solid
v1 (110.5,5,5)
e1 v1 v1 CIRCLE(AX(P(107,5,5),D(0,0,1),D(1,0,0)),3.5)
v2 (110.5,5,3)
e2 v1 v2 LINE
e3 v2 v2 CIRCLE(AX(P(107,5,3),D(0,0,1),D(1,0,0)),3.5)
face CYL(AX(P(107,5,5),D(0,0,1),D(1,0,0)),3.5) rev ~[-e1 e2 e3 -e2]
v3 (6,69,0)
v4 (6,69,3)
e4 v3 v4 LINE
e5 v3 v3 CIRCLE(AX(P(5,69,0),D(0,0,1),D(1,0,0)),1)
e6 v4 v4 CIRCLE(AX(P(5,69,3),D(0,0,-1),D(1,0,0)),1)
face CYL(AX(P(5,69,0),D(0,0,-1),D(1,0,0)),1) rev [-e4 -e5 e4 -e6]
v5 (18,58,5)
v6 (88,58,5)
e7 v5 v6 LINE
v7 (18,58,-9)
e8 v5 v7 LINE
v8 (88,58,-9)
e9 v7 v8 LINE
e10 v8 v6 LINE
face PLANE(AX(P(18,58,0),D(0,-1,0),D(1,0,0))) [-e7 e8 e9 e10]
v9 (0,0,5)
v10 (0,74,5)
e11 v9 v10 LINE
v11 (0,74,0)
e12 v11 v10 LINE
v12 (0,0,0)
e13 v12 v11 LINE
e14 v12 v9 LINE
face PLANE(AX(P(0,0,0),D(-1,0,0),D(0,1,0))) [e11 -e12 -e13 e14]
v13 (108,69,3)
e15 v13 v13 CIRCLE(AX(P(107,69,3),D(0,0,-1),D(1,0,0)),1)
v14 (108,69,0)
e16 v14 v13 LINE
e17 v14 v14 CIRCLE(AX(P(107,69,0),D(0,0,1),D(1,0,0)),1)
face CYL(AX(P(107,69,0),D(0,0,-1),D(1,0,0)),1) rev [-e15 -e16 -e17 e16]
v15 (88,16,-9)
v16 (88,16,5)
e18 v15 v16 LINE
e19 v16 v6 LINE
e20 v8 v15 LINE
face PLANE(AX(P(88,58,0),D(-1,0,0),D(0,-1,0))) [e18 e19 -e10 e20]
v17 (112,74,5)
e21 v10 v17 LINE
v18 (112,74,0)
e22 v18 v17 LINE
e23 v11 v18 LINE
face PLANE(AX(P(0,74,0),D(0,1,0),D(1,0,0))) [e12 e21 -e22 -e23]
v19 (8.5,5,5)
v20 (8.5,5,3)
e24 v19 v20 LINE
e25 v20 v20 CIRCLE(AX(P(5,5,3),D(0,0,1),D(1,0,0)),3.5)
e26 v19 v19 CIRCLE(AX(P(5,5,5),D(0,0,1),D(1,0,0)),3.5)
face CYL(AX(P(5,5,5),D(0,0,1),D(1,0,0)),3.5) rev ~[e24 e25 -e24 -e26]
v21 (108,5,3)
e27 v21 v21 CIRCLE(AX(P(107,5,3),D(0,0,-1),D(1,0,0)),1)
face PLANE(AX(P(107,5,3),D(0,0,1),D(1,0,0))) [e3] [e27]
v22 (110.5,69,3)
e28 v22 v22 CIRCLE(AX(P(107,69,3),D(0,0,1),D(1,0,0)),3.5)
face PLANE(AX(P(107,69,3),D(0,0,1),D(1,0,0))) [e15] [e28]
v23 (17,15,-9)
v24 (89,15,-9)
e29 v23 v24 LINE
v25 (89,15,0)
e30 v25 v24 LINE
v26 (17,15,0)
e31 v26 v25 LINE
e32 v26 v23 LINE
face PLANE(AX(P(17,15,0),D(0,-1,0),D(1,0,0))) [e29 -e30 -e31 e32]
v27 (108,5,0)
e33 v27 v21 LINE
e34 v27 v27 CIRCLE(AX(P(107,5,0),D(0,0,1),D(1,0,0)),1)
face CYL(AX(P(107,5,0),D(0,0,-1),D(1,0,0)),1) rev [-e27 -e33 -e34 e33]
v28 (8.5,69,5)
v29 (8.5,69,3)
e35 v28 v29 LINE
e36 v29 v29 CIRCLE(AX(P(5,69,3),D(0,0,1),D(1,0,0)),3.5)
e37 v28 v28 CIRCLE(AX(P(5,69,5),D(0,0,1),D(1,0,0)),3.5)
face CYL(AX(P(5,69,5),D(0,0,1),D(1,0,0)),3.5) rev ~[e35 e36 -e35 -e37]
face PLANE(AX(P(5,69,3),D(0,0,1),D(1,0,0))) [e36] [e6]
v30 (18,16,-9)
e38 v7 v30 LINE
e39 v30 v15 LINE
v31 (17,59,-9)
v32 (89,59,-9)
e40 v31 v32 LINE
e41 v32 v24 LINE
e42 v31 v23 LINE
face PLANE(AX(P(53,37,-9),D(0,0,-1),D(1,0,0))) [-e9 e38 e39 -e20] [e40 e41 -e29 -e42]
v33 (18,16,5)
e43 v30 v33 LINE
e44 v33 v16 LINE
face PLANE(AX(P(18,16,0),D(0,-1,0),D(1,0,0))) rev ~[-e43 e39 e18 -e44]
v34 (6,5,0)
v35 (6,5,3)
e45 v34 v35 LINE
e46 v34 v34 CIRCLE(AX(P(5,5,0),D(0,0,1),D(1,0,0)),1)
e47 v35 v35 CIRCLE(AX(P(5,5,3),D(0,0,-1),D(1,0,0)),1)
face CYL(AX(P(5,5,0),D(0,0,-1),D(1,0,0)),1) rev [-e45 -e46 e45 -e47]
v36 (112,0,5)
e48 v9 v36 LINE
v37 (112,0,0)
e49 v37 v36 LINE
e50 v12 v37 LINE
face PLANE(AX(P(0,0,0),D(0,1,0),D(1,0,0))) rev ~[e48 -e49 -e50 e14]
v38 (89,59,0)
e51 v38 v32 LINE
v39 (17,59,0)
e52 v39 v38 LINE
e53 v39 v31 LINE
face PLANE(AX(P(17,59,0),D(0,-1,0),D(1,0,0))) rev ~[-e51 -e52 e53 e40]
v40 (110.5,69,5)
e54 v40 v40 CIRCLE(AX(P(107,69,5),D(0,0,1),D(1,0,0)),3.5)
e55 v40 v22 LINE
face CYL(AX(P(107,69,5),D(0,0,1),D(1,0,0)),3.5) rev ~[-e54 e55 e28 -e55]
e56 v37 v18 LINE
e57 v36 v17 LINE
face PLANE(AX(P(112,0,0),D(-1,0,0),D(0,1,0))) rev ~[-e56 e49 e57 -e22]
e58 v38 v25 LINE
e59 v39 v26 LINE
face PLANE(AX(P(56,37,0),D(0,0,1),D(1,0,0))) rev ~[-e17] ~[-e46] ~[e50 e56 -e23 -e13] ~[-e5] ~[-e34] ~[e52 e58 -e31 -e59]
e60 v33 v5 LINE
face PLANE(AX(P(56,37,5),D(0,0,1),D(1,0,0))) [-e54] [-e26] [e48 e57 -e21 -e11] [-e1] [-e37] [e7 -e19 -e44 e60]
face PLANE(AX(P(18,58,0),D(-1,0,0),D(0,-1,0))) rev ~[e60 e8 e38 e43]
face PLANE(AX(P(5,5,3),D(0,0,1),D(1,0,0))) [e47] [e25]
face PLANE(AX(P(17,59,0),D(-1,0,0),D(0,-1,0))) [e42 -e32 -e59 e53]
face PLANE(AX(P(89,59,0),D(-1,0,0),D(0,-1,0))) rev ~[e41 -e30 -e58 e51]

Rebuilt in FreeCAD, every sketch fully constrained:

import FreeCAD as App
import Part
import Sketcher
from FreeCAD import Vector

doc = App.newDocument("Part")
body = doc.addObject("PartDesign::Body", "Body")

sketch1 = doc.addObject("Sketcher::SketchObject", "Sketch")
body.addObject(sketch1)
sketch1.AttachmentSupport = (doc.XY_Plane, [""])
sketch1.MapMode = "FlatFace"
sketch1.addGeometry([
    Part.LineSegment(Vector(0, 74, 0), Vector(0, 0, 0)),
    Part.LineSegment(Vector(0, 0, 0), Vector(112, 0, 0)),
    Part.LineSegment(Vector(112, 0, 0), Vector(112, 74, 0)),
    Part.LineSegment(Vector(112, 74, 0), Vector(0, 74, 0)),
    Part.Circle(Vector(5, 5, 0), Vector(0, 0, 1), 1),
    Part.Circle(Vector(107, 5, 0), Vector(0, 0, 1), 1),
    Part.Circle(Vector(5, 69, 0), Vector(0, 0, 1), 1),
    Part.Circle(Vector(107, 69, 0), Vector(0, 0, 1), 1),
], False)
sketch1.addConstraint([
    Sketcher.Constraint("Coincident", 0, 2, 1, 1),
    Sketcher.Constraint("Coincident", 1, 2, 2, 1),
    Sketcher.Constraint("Coincident", 2, 2, 3, 1),
    Sketcher.Constraint("Coincident", 3, 2, 0, 1),
    Sketcher.Constraint("Vertical", 0),
    Sketcher.Constraint("Horizontal", 1),
    Sketcher.Constraint("Vertical", 2),
    Sketcher.Constraint("Horizontal", 3),
    Sketcher.Constraint("Coincident", 0, 2, -1, 1),
    Sketcher.Constraint("Equal", 4, 5),
    Sketcher.Constraint("Equal", 5, 6),
    Sketcher.Constraint("Equal", 6, 7),
    Sketcher.Constraint("Horizontal", 4, 3, 5, 3),
    Sketcher.Constraint("Horizontal", 6, 3, 7, 3),
    Sketcher.Constraint("Vertical", 4, 3, 6, 3),
    Sketcher.Constraint("Vertical", 5, 3, 7, 3),
    Sketcher.Constraint("Diameter", 4, 2.0),
    Sketcher.Constraint("DistanceX", 1, 1, 1, 2, 112.0),
    Sketcher.Constraint("DistanceY", 0, 2, 0, 1, 74.0),
    Sketcher.Constraint("DistanceX", -1, 1, 4, 3, 5.0),
    Sketcher.Constraint("DistanceY", -1, 1, 4, 3, 5.0),
    Sketcher.Constraint("DistanceX", -1, 1, 5, 3, 107.0),
    Sketcher.Constraint("DistanceY", -1, 1, 6, 3, 69.0),
])
pad1 = doc.addObject("PartDesign::Pad", "Pad")
body.addObject(pad1)
pad1.Profile = sketch1
pad1.Length = 5

sketch2 = doc.addObject("Sketcher::SketchObject", "Sketch001")
body.addObject(sketch2)
sketch2.AttachmentSupport = (doc.XY_Plane, [""])
sketch2.MapMode = "FlatFace"
sketch2.AttachmentOffset = App.Placement(Vector(0, 0, 5), App.Rotation())
sketch2.addGeometry([
    Part.Circle(Vector(5, 5, 0), Vector(0, 0, 1), 3.5),
    Part.Circle(Vector(5, 69, 0), Vector(0, 0, 1), 3.5),
    Part.Circle(Vector(107, 69, 0), Vector(0, 0, 1), 3.5),
    Part.Circle(Vector(107, 5, 0), Vector(0, 0, 1), 3.5),
], False)
sketch2.addConstraint([
    Sketcher.Constraint("Equal", 0, 1),
    Sketcher.Constraint("Equal", 1, 2),
    Sketcher.Constraint("Equal", 2, 3),
    Sketcher.Constraint("Horizontal", 1, 3, 2, 3),
    Sketcher.Constraint("Horizontal", 0, 3, 3, 3),
    Sketcher.Constraint("Vertical", 0, 3, 1, 3),
    Sketcher.Constraint("Vertical", 2, 3, 3, 3),
    Sketcher.Constraint("Diameter", 0, 7.0),
    Sketcher.Constraint("DistanceX", -1, 1, 0, 3, 5.0),
    Sketcher.Constraint("DistanceY", -1, 1, 0, 3, 5.0),
    Sketcher.Constraint("DistanceY", -1, 1, 1, 3, 69.0),
    Sketcher.Constraint("DistanceX", -1, 1, 2, 3, 107.0),
])
pocket1 = doc.addObject("PartDesign::Pocket", "Pocket")
body.addObject(pocket1)
pocket1.Profile = sketch2
pocket1.Length = 2

sketch3 = doc.addObject("Sketcher::SketchObject", "Sketch002")
body.addObject(sketch3)
sketch3.AttachmentSupport = (doc.XY_Plane, [""])
sketch3.MapMode = "FlatFace"
sketch3.AttachmentOffset = App.Placement(Vector(0, 0, 5), App.Rotation())
sketch3.addGeometry([
    Part.LineSegment(Vector(18, 58, 0), Vector(18, 16, 0)),
    Part.LineSegment(Vector(18, 16, 0), Vector(88, 16, 0)),
    Part.LineSegment(Vector(88, 16, 0), Vector(88, 58, 0)),
    Part.LineSegment(Vector(88, 58, 0), Vector(18, 58, 0)),
], False)
sketch3.addConstraint([
    Sketcher.Constraint("Coincident", 0, 2, 1, 1),
    Sketcher.Constraint("Coincident", 1, 2, 2, 1),
    Sketcher.Constraint("Coincident", 2, 2, 3, 1),
    Sketcher.Constraint("Coincident", 3, 2, 0, 1),
    Sketcher.Constraint("Vertical", 0),
    Sketcher.Constraint("Horizontal", 1),
    Sketcher.Constraint("Vertical", 2),
    Sketcher.Constraint("Horizontal", 3),
    Sketcher.Constraint("DistanceX", 1, 1, 1, 2, 70.0),
    Sketcher.Constraint("DistanceY", 0, 2, 0, 1, 42.0),
    Sketcher.Constraint("DistanceX", -1, 1, 0, 2, 18.0),
    Sketcher.Constraint("DistanceY", -1, 1, 0, 2, 16.0),
])
pocket2 = doc.addObject("PartDesign::Pocket", "Pocket001")
body.addObject(pocket2)
pocket2.Profile = sketch3
pocket2.Length = 5

sketch4 = doc.addObject("Sketcher::SketchObject", "Sketch003")
body.addObject(sketch4)
sketch4.AttachmentSupport = (doc.XY_Plane, [""])
sketch4.MapMode = "FlatFace"
sketch4.addGeometry([
    Part.LineSegment(Vector(17, 15, 0), Vector(17, 59, 0)),
    Part.LineSegment(Vector(17, 59, 0), Vector(89, 59, 0)),
    Part.LineSegment(Vector(89, 59, 0), Vector(89, 15, 0)),
    Part.LineSegment(Vector(89, 15, 0), Vector(17, 15, 0)),
    Part.LineSegment(Vector(88, 58, 0), Vector(18, 58, 0)),
    Part.LineSegment(Vector(18, 58, 0), Vector(18, 16, 0)),
    Part.LineSegment(Vector(18, 16, 0), Vector(88, 16, 0)),
    Part.LineSegment(Vector(88, 16, 0), Vector(88, 58, 0)),
], False)
sketch4.addConstraint([
    Sketcher.Constraint("Coincident", 0, 2, 1, 1),
    Sketcher.Constraint("Coincident", 1, 2, 2, 1),
    Sketcher.Constraint("Coincident", 2, 2, 3, 1),
    Sketcher.Constraint("Coincident", 3, 2, 0, 1),
    Sketcher.Constraint("Coincident", 4, 2, 5, 1),
    Sketcher.Constraint("Coincident", 5, 2, 6, 1),
    Sketcher.Constraint("Coincident", 6, 2, 7, 1),
    Sketcher.Constraint("Coincident", 7, 2, 4, 1),
    Sketcher.Constraint("Vertical", 0),
    Sketcher.Constraint("Horizontal", 1),
    Sketcher.Constraint("Vertical", 2),
    Sketcher.Constraint("Horizontal", 3),
    Sketcher.Constraint("Horizontal", 4),
    Sketcher.Constraint("Vertical", 5),
    Sketcher.Constraint("Horizontal", 6),
    Sketcher.Constraint("Vertical", 7),
    Sketcher.Constraint("DistanceX", 1, 1, 1, 2, 72.0),
    Sketcher.Constraint("DistanceX", 4, 2, 4, 1, 70.0),
    Sketcher.Constraint("DistanceY", 0, 1, 0, 2, 44.0),
    Sketcher.Constraint("DistanceY", 5, 2, 5, 1, 42.0),
    Sketcher.Constraint("DistanceX", -1, 1, 0, 2, 17.0),
    Sketcher.Constraint("DistanceY", -1, 1, 0, 2, 59.0),
    Sketcher.Constraint("DistanceX", -1, 1, 4, 2, 18.0),
    Sketcher.Constraint("DistanceY", -1, 1, 4, 2, 58.0),
])
pad2 = doc.addObject("PartDesign::Pad", "Pad001")
body.addObject(pad2)
pad2.Profile = sketch4
pad2.Length = 9
pad2.Reversed = True

doc.recompute()
